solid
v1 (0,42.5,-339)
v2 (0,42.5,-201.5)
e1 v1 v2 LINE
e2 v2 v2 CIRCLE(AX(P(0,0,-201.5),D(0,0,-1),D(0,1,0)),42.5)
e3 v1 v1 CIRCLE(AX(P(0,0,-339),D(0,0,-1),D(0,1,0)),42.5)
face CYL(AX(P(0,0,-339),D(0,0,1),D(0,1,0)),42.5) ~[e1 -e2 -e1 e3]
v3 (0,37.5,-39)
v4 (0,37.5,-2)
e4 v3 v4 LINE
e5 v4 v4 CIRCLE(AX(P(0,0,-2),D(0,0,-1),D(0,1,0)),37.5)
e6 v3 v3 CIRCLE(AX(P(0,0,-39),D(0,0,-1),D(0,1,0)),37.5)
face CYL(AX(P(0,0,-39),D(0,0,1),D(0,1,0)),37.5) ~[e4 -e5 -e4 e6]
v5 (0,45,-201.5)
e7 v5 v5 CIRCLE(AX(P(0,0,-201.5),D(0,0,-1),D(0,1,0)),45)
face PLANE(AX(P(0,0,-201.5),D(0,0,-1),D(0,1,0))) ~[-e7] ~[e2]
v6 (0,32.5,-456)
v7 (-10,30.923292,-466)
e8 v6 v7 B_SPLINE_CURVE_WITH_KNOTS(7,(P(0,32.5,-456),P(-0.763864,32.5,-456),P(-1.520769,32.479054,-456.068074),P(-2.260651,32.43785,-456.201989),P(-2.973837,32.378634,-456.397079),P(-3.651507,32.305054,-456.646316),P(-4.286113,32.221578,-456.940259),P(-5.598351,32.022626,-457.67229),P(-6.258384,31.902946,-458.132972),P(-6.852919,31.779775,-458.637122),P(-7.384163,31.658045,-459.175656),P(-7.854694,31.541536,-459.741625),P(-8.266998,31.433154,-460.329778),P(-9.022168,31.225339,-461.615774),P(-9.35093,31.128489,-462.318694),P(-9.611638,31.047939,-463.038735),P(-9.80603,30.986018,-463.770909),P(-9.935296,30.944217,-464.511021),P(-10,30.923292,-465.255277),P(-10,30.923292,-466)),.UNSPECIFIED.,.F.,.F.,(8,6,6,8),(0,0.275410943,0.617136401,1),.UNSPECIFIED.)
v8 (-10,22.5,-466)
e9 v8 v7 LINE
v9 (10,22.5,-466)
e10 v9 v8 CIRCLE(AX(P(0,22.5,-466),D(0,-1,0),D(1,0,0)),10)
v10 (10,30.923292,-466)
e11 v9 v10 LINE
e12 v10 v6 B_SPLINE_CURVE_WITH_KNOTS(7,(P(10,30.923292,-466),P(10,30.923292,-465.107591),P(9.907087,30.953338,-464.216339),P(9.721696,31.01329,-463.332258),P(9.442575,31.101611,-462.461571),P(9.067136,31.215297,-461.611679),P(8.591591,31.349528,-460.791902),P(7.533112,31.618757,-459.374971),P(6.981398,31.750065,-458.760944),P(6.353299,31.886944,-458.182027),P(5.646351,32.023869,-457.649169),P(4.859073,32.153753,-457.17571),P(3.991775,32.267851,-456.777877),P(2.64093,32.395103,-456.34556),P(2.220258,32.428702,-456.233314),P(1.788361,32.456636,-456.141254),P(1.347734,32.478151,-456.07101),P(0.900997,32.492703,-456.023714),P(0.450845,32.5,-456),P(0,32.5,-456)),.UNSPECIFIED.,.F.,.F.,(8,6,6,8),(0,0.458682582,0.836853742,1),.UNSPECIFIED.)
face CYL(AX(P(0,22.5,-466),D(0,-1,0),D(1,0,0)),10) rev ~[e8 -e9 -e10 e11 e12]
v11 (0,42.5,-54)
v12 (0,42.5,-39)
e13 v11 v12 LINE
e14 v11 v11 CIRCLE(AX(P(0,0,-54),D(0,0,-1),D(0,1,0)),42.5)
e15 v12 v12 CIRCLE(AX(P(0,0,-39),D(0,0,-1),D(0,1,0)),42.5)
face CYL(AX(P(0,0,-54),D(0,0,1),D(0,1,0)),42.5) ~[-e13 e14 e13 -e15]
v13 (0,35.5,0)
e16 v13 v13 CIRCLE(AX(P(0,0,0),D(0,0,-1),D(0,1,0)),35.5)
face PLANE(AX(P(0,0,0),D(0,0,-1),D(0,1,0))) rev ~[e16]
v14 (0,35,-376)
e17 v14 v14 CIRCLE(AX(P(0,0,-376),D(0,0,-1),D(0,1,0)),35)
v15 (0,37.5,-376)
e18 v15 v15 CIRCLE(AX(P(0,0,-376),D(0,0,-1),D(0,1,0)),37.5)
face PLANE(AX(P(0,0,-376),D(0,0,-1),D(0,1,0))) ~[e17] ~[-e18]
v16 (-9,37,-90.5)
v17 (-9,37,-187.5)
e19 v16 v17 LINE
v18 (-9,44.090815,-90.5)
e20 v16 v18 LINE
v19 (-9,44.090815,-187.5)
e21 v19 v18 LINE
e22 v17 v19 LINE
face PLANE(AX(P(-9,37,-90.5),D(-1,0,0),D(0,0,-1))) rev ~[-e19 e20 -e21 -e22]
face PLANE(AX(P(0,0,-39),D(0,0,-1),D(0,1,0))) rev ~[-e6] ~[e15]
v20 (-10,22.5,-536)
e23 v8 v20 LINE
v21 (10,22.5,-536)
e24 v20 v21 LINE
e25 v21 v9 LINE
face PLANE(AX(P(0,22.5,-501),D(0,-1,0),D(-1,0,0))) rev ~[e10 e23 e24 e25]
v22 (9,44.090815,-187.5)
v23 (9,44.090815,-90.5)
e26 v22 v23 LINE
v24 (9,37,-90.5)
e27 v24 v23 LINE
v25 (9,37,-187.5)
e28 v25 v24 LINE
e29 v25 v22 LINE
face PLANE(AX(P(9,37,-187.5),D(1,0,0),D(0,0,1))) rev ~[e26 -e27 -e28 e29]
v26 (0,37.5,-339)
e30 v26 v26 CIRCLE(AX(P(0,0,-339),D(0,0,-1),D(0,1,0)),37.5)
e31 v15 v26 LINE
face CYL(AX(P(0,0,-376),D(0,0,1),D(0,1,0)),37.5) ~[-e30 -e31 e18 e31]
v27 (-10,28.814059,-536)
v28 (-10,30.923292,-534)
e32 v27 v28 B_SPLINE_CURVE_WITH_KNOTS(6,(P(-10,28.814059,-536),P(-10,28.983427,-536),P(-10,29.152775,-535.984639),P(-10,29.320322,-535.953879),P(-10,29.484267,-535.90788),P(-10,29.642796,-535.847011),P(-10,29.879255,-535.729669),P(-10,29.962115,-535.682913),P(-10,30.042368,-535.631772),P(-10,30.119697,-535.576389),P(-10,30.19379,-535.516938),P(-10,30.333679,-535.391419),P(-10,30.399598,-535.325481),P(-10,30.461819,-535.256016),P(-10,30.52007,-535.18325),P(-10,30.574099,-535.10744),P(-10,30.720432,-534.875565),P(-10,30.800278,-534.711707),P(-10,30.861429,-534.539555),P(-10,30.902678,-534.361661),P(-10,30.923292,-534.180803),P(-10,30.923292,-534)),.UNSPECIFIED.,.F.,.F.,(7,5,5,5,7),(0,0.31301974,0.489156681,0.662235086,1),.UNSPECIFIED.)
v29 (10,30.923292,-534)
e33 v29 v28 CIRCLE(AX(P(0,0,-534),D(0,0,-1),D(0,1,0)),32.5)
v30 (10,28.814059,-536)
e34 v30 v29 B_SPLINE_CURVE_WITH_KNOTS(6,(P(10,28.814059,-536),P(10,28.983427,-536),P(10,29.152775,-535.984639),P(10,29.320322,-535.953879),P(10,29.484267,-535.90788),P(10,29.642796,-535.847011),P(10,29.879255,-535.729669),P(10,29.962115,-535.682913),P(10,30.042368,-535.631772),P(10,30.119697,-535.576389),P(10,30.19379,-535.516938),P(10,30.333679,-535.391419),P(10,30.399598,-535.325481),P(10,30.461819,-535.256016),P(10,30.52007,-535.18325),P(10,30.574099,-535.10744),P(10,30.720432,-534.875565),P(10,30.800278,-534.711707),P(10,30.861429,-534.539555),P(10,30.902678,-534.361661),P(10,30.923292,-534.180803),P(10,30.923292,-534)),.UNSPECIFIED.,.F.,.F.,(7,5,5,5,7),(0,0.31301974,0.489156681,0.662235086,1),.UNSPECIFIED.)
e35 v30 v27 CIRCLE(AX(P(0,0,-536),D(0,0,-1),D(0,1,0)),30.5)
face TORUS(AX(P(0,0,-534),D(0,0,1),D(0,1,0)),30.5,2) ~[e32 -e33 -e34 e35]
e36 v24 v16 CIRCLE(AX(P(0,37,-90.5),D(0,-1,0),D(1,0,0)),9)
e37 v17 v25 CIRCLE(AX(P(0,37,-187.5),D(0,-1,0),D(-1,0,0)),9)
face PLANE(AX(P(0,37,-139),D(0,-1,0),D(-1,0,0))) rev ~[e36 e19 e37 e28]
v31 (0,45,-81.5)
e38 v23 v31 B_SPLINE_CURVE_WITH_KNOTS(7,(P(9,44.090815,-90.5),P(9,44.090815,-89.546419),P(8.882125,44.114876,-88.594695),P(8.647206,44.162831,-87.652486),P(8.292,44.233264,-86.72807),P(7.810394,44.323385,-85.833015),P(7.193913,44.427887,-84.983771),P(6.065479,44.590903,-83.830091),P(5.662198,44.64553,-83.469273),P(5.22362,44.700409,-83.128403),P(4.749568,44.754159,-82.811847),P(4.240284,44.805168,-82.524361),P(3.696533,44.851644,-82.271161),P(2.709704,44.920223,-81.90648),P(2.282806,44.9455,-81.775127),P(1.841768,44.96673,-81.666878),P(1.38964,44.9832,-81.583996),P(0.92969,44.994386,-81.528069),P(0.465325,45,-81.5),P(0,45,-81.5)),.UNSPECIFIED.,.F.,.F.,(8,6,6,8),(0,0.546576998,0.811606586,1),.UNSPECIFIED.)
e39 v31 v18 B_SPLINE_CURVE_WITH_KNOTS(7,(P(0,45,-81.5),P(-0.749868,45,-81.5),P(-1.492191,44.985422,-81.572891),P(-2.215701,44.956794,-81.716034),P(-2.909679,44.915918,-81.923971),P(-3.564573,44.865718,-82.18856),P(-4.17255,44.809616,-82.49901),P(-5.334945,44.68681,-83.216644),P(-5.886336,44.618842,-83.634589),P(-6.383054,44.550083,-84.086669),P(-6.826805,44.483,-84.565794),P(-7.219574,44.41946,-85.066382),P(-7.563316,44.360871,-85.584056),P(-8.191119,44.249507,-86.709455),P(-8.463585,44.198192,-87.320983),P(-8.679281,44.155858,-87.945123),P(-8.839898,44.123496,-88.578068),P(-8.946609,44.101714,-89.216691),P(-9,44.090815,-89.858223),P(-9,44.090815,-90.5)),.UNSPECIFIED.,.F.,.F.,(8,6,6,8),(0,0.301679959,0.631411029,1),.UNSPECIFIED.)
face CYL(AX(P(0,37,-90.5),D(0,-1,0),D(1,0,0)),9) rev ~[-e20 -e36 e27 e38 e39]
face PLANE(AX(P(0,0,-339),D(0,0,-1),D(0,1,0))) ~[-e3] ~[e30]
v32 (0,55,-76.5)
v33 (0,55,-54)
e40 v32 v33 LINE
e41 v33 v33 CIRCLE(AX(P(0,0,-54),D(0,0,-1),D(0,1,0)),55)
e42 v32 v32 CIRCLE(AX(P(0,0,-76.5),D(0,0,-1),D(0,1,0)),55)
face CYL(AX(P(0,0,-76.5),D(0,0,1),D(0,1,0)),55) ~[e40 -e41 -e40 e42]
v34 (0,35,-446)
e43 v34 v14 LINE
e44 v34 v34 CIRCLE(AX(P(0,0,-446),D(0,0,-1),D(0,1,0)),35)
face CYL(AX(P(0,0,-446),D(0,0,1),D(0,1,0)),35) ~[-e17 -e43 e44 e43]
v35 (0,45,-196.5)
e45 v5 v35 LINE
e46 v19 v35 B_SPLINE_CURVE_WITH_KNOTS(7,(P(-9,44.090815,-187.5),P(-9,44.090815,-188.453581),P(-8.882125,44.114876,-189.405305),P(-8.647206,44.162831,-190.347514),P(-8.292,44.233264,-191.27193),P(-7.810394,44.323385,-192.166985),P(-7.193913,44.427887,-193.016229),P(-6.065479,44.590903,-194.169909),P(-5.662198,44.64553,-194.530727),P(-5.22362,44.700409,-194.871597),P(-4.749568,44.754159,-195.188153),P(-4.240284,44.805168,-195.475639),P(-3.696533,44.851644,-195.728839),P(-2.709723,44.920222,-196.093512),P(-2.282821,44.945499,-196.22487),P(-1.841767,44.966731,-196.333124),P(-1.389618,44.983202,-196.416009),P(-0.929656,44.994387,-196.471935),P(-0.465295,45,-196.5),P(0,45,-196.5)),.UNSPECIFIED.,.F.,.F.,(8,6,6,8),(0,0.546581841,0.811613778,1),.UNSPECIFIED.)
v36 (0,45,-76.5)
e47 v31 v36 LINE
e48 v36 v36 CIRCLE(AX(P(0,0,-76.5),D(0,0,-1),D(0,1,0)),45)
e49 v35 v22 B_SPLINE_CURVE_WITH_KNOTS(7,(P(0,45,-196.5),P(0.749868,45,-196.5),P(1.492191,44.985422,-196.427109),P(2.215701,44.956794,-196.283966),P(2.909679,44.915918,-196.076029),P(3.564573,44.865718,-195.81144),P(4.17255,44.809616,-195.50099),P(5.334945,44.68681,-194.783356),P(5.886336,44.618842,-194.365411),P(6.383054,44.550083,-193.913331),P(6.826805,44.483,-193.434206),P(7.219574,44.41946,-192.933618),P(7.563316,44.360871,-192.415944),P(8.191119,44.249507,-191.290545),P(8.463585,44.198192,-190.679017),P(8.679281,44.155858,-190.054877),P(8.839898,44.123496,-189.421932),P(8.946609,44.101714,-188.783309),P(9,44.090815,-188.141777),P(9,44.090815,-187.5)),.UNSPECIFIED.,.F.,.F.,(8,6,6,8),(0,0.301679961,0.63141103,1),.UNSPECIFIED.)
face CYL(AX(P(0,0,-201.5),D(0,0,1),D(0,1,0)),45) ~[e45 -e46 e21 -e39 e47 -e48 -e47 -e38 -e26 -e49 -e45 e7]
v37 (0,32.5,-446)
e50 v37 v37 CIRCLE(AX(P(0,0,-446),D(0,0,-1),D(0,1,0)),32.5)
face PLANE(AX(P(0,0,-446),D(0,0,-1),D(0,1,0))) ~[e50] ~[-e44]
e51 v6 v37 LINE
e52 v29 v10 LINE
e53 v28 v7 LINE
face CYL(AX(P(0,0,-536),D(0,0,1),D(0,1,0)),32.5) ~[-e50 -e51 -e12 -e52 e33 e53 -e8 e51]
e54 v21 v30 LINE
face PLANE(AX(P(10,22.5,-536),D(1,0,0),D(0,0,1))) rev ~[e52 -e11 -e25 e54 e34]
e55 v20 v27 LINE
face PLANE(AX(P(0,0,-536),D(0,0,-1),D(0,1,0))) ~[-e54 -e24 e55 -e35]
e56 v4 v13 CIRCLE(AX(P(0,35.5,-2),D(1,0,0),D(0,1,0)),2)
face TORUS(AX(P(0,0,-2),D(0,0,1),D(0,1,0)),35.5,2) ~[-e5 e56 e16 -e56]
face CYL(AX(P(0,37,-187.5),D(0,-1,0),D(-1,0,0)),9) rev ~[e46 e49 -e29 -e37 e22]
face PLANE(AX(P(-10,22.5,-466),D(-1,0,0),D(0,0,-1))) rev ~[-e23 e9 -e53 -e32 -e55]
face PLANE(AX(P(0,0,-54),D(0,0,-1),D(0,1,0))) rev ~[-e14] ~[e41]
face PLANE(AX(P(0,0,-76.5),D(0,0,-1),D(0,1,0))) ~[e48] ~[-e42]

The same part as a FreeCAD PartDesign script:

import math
import FreeCAD as App
import Part
import Sketcher
Q = App.Units.Quantity


def edges_at(feature, points):
    """Names of the edges that pass closest to the given points."""
    edges = feature.Shape.Edges
    near = lambda p: min(range(len(edges)), key=lambda i: edges[i].distToShape(Part.Vertex(*p))[0])
    return sorted({f"Edge{near(p) + 1}" for p in points})

doc = App.newDocument("Part")
body = doc.addObject("PartDesign::Body", "Body")

# Sketch on YZ plane
sketch1 = body.newObject("Sketcher::SketchObject", "Sketch")
sketch1.AttachmentSupport = (doc.getObject("YZ_Plane"), [""])
sketch1.MapMode = "FlatFace"
sketch1.addGeometry(Part.LineSegment(App.Vector(0, 0, 0), App.Vector(0, -536, 0)), False)
sketch1.addGeometry(Part.LineSegment(App.Vector(0, -536, 0), App.Vector(32.5, -536, 0)), False)
sketch1.addGeometry(Part.LineSegment(App.Vector(32.5, -536, 0), App.Vector(32.5, -446, 0)), False)
sketch1.addGeometry(Part.LineSegment(App.Vector(32.5, -446, 0), App.Vector(35, -446, 0)), False)
sketch1.addGeometry(Part.LineSegment(App.Vector(35, -446, 0), App.Vector(35, -376, 0)), False)
sketch1.addGeometry(Part.LineSegment(App.Vector(35, -376, 0), App.Vector(37.5, -376, 0)), False)
sketch1.addGeometry(Part.LineSegment(App.Vector(37.5, -376, 0), App.Vector(37.5, -339, 0)), False)
sketch1.addGeometry(Part.LineSegment(App.Vector(37.5, -339, 0), App.Vector(42.5, -339, 0)), False)
sketch1.addGeometry(Part.LineSegment(App.Vector(42.5, -339, 0), App.Vector(42.5, -201.5, 0)), False)
sketch1.addGeometry(Part.LineSegment(App.Vector(42.5, -201.5, 0), App.Vector(45, -201.5, 0)), False)
sketch1.addGeometry(Part.LineSegment(App.Vector(45, -201.5, 0), App.Vector(45, -76.5, 0)), False)
sketch1.addGeometry(Part.LineSegment(App.Vector(45, -76.5, 0), App.Vector(55, -76.5, 0)), False)
sketch1.addGeometry(Part.LineSegment(App.Vector(55, -76.5, 0), App.Vector(55, -54, 0)), False)
sketch1.addGeometry(Part.LineSegment(App.Vector(55, -54, 0), App.Vector(42.5, -54, 0)), False)
sketch1.addGeometry(Part.LineSegment(App.Vector(42.5, -54, 0), App.Vector(42.5, -39, 0)), False)
sketch1.addGeometry(Part.LineSegment(App.Vector(42.5, -39, 0), App.Vector(37.5, -39, 0)), False)
sketch1.addGeometry(Part.LineSegment(App.Vector(37.5, -39, 0), App.Vector(37.5, 0, 0)), False)
sketch1.addGeometry(Part.LineSegment(App.Vector(37.5, 0, 0), App.Vector(0, 0, 0)), False)
sketch1.addConstraint(Sketcher.Constraint("Coincident", 0, 2, 1, 1))
sketch1.addConstraint(Sketcher.Constraint("Coincident", 1, 2, 2, 1))
sketch1.addConstraint(Sketcher.Constraint("Coincident", 2, 2, 3, 1))
sketch1.addConstraint(Sketcher.Constraint("Coincident", 3, 2, 4, 1))
sketch1.addConstraint(Sketcher.Constraint("Coincident", 4, 2, 5, 1))
sketch1.addConstraint(Sketcher.Constraint("Coincident", 5, 2, 6, 1))
sketch1.addConstraint(Sketcher.Constraint("Coincident", 6, 2, 7, 1))
sketch1.addConstraint(Sketcher.Constraint("Coincident", 7, 2, 8, 1))
sketch1.addConstraint(Sketcher.Constraint("Coincident", 8, 2, 9, 1))
sketch1.addConstraint(Sketcher.Constraint("Coincident", 9, 2, 10, 1))
sketch1.addConstraint(Sketcher.Constraint("Coincident", 10, 2, 11, 1))
sketch1.addConstraint(Sketcher.Constraint("Coincident", 11, 2, 12, 1))
sketch1.addConstraint(Sketcher.Constraint("Coincident", 12, 2, 13, 1))
sketch1.addConstraint(Sketcher.Constraint("Coincident", 13, 2, 14, 1))
sketch1.addConstraint(Sketcher.Constraint("Coincident", 14, 2, 15, 1))
sketch1.addConstraint(Sketcher.Constraint("Coincident", 15, 2, 16, 1))
sketch1.addConstraint(Sketcher.Constraint("Coincident", 16, 2, 17, 1))
sketch1.addConstraint(Sketcher.Constraint("Coincident", 17, 2, 0, 1))
sketch1.addConstraint(Sketcher.Constraint("Vertical", 0))
sketch1.addConstraint(Sketcher.Constraint("Horizontal", 1))
sketch1.addConstraint(Sketcher.Constraint("Vertical", 2))
sketch1.addConstraint(Sketcher.Constraint("Horizontal", 3))
sketch1.addConstraint(Sketcher.Constraint("Vertical", 4))
sketch1.addConstraint(Sketcher.Constraint("Horizontal", 5))
sketch1.addConstraint(Sketcher.Constraint("Vertical", 6))
sketch1.addConstraint(Sketcher.Constraint("Horizontal", 7))
sketch1.addConstraint(Sketcher.Constraint("Vertical", 8))
sketch1.addConstraint(Sketcher.Constraint("Horizontal", 9))
sketch1.addConstraint(Sketcher.Constraint("Vertical", 10))
sketch1.addConstraint(Sketcher.Constraint("Horizontal", 11))
sketch1.addConstraint(Sketcher.Constraint("Vertical", 12))
sketch1.addConstraint(Sketcher.Constraint("Horizontal", 13))
sketch1.addConstraint(Sketcher.Constraint("Vertical", 14))
sketch1.addConstraint(Sketcher.Constraint("Horizontal", 15))
sketch1.addConstraint(Sketcher.Constraint("Vertical", 16))
sketch1.addConstraint(Sketcher.Constraint("Horizontal", 17))
sketch1.addConstraint(Sketcher.Constraint("Coincident", 17, 2, -1, 1))
sketch1.addConstraint(Sketcher.Constraint("Vertical", 8, 2, 13, 2))
sketch1.addConstraint(Sketcher.Constraint("Vertical", 6, 2, 15, 2))
sketch1.addConstraint(Sketcher.Constraint("Equal", 3, 5))
sketch1.addConstraint(Sketcher.Constraint("Equal", 5, 9))
sketch1.addConstraint(Sketcher.Constraint("DistanceX", 7, 1, 7, 2, Q("5 mm")))
sketch1.addConstraint(Sketcher.Constraint("DistanceX", 11, 1, 11, 2, Q("10 mm")))
sketch1.addConstraint(Sketcher.Constraint("DistanceY", 0, 2, 0, 1, Q("536 mm")))
sketch1.addConstraint(Sketcher.Constraint("DistanceY", 2, 1, 2, 2, Q("90 mm")))
sketch1.addConstraint(Sketcher.Constraint("DistanceY", 4, 1, 4, 2, Q("70 mm")))
sketch1.addConstraint(Sketcher.Constraint("DistanceY", 6, 1, 6, 2, Q("37 mm")))
sketch1.addConstraint(Sketcher.Constraint("DistanceY", 10, 1, 10, 2, Q("125 mm")))
sketch1.addConstraint(Sketcher.Constraint("DistanceY", 14, 1, 14, 2, Q("15 mm")))
sketch1.addConstraint(Sketcher.Constraint("DistanceY", 16, 1, 16, 2, Q("39 mm")))
sketch1.addConstraint(Sketcher.Constraint("DistanceX", 1, 1, 1, 2, Q("32.5 mm")))
sketch1.addConstraint(Sketcher.Constraint("DistanceX", 3, 1, 3, 2, Q("2.5 mm")))
sketch1.addConstraint(Sketcher.Constraint("DistanceY", 8, 1, 8, 2, Q("137.5 mm")))
revolution = body.newObject("PartDesign::Revolution", "Revolution")
revolution.Profile = sketch1
revolution.ReferenceAxis = (sketch1, ["V_Axis"])
revolution.Angle = 360
doc.recompute()

fillet = body.newObject("PartDesign::Fillet", "Fillet")
fillet.Base = (revolution, edges_at(revolution, [(0, -37.5, 0), (0, -32.5, -536)]))
fillet.Radius = 2

# Sketch on XZ plane
sketch2 = body.newObject("Sketcher::SketchObject", "Sketch001")
sketch2.AttachmentSupport = (doc.getObject("XZ_Plane"), [""])
sketch2.MapMode = "FlatFace"
sketch2.AttachmentOffset = App.Placement(App.Vector(0, 0, -37), App.Rotation())
sketch2.addGeometry(Part.LineSegment(App.Vector(9, -90, 0), App.Vector(9, -188, 0)), False)
sketch2.addGeometry(Part.ArcOfCircle(Part.Circle(App.Vector(0, -188, 0), App.Vector(0, 0, 1), 9), math.radians(180), math.radians(360)), False)
sketch2.addGeometry(Part.LineSegment(App.Vector(-9, -188, 0), App.Vector(-9, -90, 0)), False)
sketch2.addGeometry(Part.ArcOfCircle(Part.Circle(App.Vector(0, -90, 0), App.Vector(0, 0, 1), 9), math.radians(0), math.radians(180)), False)
sketch2.addConstraint(Sketcher.Constraint("Tangent", 0, 2, 1, 2))
sketch2.addConstraint(Sketcher.Constraint("Tangent", 1, 1, 2, 1))
sketch2.addConstraint(Sketcher.Constraint("Tangent", 2, 2, 3, 2))
sketch2.addConstraint(Sketcher.Constraint("Tangent", 3, 1, 0, 1))
sketch2.addConstraint(Sketcher.Constraint("Vertical", 0))
sketch2.addConstraint(Sketcher.Constraint("Vertical", 2))
sketch2.addConstraint(Sketcher.Constraint("PointOnObject", 1, 3, -2))
sketch2.addConstraint(Sketcher.Constraint("Radius", 1, Q("9 mm")))
sketch2.addConstraint(Sketcher.Constraint("DistanceY", 0, 2, 0, 1, Q("97 mm")))
sketch2.addConstraint(Sketcher.Constraint("DistanceY", 1, 3, -1, 1, Q("187.5 mm")))
pocket1 = body.newObject("PartDesign::Pocket", "Pocket")
pocket1.Profile = sketch2
pocket1.Length = 10

# Sketch on XZ plane
sketch3 = body.newObject("Sketcher::SketchObject", "Sketch002")
sketch3.AttachmentSupport = (doc.getObject("XZ_Plane"), [""])
sketch3.MapMode = "FlatFace"
sketch3.AttachmentOffset = App.Placement(App.Vector(0, 0, -22.5), App.Rotation())
sketch3.addGeometry(Part.LineSegment(App.Vector(10, -466, 0), App.Vector(10, -536, 0)), False)
sketch3.addGeometry(Part.ArcOfCircle(Part.Circle(App.Vector(0, -536, 0), App.Vector(0, 0, 1), 10), math.radians(180), math.radians(360)), False)
sketch3.addGeometry(Part.LineSegment(App.Vector(-10, -536, 0), App.Vector(-10, -466, 0)), False)
sketch3.addGeometry(Part.ArcOfCircle(Part.Circle(App.Vector(0, -466, 0), App.Vector(0, 0, 1), 10), math.radians(0), math.radians(180)), False)
sketch3.addConstraint(Sketcher.Constraint("Tangent", 0, 2, 1, 2))
sketch3.addConstraint(Sketcher.Constraint("Tangent", 1, 1, 2, 1))
sketch3.addConstraint(Sketcher.Constraint("Tangent", 2, 2, 3, 2))
sketch3.addConstraint(Sketcher.Constraint("Tangent", 3, 1, 0, 1))
sketch3.addConstraint(Sketcher.Constraint("Vertical", 0))
sketch3.addConstraint(Sketcher.Constraint("Vertical", 2))
sketch3.addConstraint(Sketcher.Constraint("PointOnObject", 1, 3, -2))
sketch3.addConstraint(Sketcher.Constraint("Radius", 1, Q("10 mm")))
sketch3.addConstraint(Sketcher.Constraint("DistanceY", 0, 2, 0, 1, Q("70 mm")))
sketch3.addConstraint(Sketcher.Constraint("DistanceY", 1, 3, -1, 1, Q("536 mm")))
pocket2 = body.newObject("PartDesign::Pocket", "Pocket001")
pocket2.Profile = sketch3
pocket2.Length = 10

doc.recompute()
